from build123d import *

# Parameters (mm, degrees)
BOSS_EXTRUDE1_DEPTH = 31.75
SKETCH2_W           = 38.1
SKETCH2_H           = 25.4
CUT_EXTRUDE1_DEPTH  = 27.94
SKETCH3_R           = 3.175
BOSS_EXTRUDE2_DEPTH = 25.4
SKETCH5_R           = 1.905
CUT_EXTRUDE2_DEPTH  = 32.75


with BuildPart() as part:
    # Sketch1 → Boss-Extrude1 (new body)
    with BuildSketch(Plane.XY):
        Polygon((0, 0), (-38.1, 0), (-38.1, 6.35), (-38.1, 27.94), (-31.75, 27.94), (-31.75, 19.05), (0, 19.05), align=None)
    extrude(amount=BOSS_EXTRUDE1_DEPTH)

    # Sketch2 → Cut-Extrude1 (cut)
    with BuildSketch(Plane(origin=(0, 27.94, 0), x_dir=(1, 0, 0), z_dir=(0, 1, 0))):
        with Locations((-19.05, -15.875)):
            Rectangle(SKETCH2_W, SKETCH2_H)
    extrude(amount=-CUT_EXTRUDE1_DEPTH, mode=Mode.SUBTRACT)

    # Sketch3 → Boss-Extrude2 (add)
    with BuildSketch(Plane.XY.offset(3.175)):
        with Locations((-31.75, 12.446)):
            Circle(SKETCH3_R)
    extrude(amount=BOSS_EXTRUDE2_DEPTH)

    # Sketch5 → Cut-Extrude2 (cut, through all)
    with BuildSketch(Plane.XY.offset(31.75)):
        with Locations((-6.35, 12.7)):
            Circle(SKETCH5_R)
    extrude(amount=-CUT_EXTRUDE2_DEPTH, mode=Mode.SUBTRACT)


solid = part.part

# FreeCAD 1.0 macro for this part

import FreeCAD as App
import Part
import Sketcher

V = App.Vector
Q = App.Units.Quantity

doc = App.newDocument("Part")
body = doc.addObject("PartDesign::Body", "Body")
body.AllowCompound = True

# Sketch on XY plane
sketch1 = body.newObject("Sketcher::SketchObject", "Sketch")
sketch1.AttachmentSupport = (doc.getObject("XY_Plane"), [""])
sketch1.MapMode = "FlatFace"
sketch1.addGeometry([
    Part.LineSegment(V(-38, 0, 0), V(0, 0, 0)),  # 0
    Part.LineSegment(V(0, 0, 0), V(0, 19, 0)),  # 1
    Part.LineSegment(V(0, 19, 0), V(-32, 19, 0)),  # 2
    Part.LineSegment(V(-32, 19, 0), V(-32, 28, 0)),  # 3
    Part.LineSegment(V(-32, 28, 0), V(-38, 28, 0)),  # 4
    Part.LineSegment(V(-38, 28, 0), V(-38, 0, 0)),  # 5
], False)
sketch1.addConstraint([
    Sketcher.Constraint("Coincident", 0, 2, 1, 1),
    Sketcher.Constraint("Coincident", 1, 2, 2, 1),
    Sketcher.Constraint("Coincident", 2, 2, 3, 1),
    Sketcher.Constraint("Coincident", 3, 2, 4, 1),
    Sketcher.Constraint("Coincident", 4, 2, 5, 1),
    Sketcher.Constraint("Coincident", 5, 2, 0, 1),
    Sketcher.Constraint("Horizontal", 0),
    Sketcher.Constraint("Vertical", 1),
    Sketcher.Constraint("Horizontal", 2),
    Sketcher.Constraint("Vertical", 3),
    Sketcher.Constraint("Horizontal", 4),
    Sketcher.Constraint("Vertical", 5),
    Sketcher.Constraint("Coincident", 0, 2, -1, 1),
    Sketcher.Constraint("DistanceX", 0, 1, 0, 2, Q("1.5 in")),
    Sketcher.Constraint("DistanceY", 5, 2, 5, 1, Q("1.1 in")),
    Sketcher.Constraint("DistanceX", 2, 2, 2, 1, Q("1.25 in")),
    Sketcher.Constraint("DistanceY", 1, 1, 1, 2, Q("0.75 in")),
])
pad1 = body.newObject("PartDesign::Pad", "Pad")
pad1.Profile = sketch1
pad1.Length = Q("1.25 in")

# Sketch on XZ plane
sketch2 = body.newObject("Sketcher::SketchObject", "Sketch001")
sketch2.AttachmentSupport = (doc.getObject("XZ_Plane"), [""])
sketch2.MapMode = "FlatFace"
sketch2.AttachmentOffset = App.Placement(V(0, 0, -1.1 * 25.4), App.Rotation())
sketch2.addGeometry([
    Part.LineSegment(V(-38, 3, 0), V(-38, 29, 0)),
    Part.LineSegment(V(-38, 29, 0), V(0, 29, 0)),
    Part.LineSegment(V(0, 29, 0), V(0, 3, 0)),
    Part.LineSegment(V(0, 3, 0), V(-38, 3, 0)),
], False)
sketch2.addConstraint([
    Sketcher.Constraint("Coincident", 0, 2, 1, 1),
    Sketcher.Constraint("Coincident", 1, 2, 2, 1),
    Sketcher.Constraint("Coincident", 2, 2, 3, 1),
    Sketcher.Constraint("Coincident", 3, 2, 0, 1),
    Sketcher.Constraint("Vertical", 0),
    Sketcher.Constraint("Horizontal", 1),
    Sketcher.Constraint("Vertical", 2),
    Sketcher.Constraint("Horizontal", 3),
    Sketcher.Constraint("PointOnObject", 1, 2, -2),
    Sketcher.Constraint("DistanceY", 0, 1, 0, 2, Q("1 in")),
    Sketcher.Constraint("DistanceX", 1, 1, 1, 2, Q("1.5 in")),
    Sketcher.Constraint("DistanceY", -1, 1, 0, 2, Q("1.125 in")),
])
pocket1 = body.newObject("PartDesign::Pocket", "Pocket")
pocket1.Profile = sketch2
pocket1.Length = Q("1.1 in")
pocket1.Reversed = True

# Sketch on XY plane
sketch3 = body.newObject("Sketcher::SketchObject", "Sketch002")
sketch3.AttachmentSupport = (doc.getObject("XY_Plane"), [""])
sketch3.MapMode = "FlatFace"
sketch3.AttachmentOffset = App.Placement(V(0, 0, 0.125 * 25.4), App.Rotation())
sketch3.addGeometry(Part.Circle(V(-31.8, 12.4, 0), V(0, 0, 1), 3.2), False)
sketch3.addConstraint([
    Sketcher.Constraint("Diameter", 0, Q("0.25 in")),
    Sketcher.Constraint("DistanceX", 0, 3, -1, 1, Q("1.25 in")),
    Sketcher.Constraint("DistanceY", -1, 1, 0, 3, Q("0.49 in")),
])
pad2 = body.newObject("PartDesign::Pad", "Pad001")
pad2.Profile = sketch3
pad2.Length = Q("1 in")

# Sketch on XY plane
sketch4 = body.newObject("Sketcher::SketchObject", "Sketch003")
sketch4.AttachmentSupport = (doc.getObject("XY_Plane"), [""])
sketch4.MapMode = "FlatFace"
sketch4.AttachmentOffset = App.Placement(V(0, 0, 1.25 * 25.4), App.Rotation())
sketch4.addGeometry(Part.Circle(V(-6.3, 12.7, 0), V(0, 0, 1), 1.9), False)
sketch4.addConstraint([
    Sketcher.Constraint("Diameter", 0, Q("0.15 in")),
    Sketcher.Constraint("DistanceY", -1, 1, 0, 3, Q("0.5 in")),
    Sketcher.Constraint("DistanceX", 0, 3, -1, 1, Q("0.25 in")),
])
pocket2 = body.newObject("PartDesign::Pocket", "Pocket001")
pocket2.Profile = sketch4
pocket2.Type = "ThroughAll"

doc.recompute()
